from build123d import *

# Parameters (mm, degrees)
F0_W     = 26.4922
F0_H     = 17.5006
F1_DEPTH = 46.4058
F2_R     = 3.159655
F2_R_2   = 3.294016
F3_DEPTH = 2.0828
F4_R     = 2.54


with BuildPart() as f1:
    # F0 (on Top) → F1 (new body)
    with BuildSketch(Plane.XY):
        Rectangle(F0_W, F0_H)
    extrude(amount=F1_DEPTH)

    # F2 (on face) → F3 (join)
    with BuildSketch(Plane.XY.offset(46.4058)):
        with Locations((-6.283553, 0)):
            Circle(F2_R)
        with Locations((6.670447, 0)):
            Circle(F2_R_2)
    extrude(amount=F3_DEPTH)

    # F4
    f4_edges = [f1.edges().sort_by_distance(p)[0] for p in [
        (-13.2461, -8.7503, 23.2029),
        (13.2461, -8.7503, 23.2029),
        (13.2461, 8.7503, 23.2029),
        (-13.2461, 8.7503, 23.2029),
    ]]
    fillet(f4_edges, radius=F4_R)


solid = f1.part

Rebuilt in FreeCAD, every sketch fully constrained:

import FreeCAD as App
import Part
import Sketcher

V = App.Vector
Q = App.Units.Quantity


def edges_at(feature, points):
    """Names of the edges that pass closest to the given points."""
    edges = feature.Shape.Edges
    near = lambda p: min(range(len(edges)), key=lambda i: edges[i].distToShape(Part.Vertex(*p))[0])
    return sorted({f"Edge{near(p) + 1}" for p in points})

doc = App.newDocument("Part")
body = doc.addObject("PartDesign::Body", "Body")

# Sketch on XY plane
sketch1 = doc.addObject("Sketcher::SketchObject", "Sketch")
body.addObject(sketch1)
sketch1.AttachmentSupport = (doc.XY_Plane, [""])
sketch1.MapMode = "FlatFace"
sketch1.addGeometry(Part.LineSegment(V(-13, 9, 0), V(-13, -9, 0)), False)
sketch1.addGeometry(Part.LineSegment(V(-13, -9, 0), V(13, -9, 0)), False)
sketch1.addGeometry(Part.LineSegment(V(13, -9, 0), V(13, 9, 0)), False)
sketch1.addGeometry(Part.LineSegment(V(13, 9, 0), V(-13, 9, 0)), False)
sketch1.addConstraint(Sketcher.Constraint("Coincident", 0, 2, 1, 1))
sketch1.addConstraint(Sketcher.Constraint("Coincident", 1, 2, 2, 1))
sketch1.addConstraint(Sketcher.Constraint("Coincident", 2, 2, 3, 1))
sketch1.addConstraint(Sketcher.Constraint("Coincident", 3, 2, 0, 1))
sketch1.addConstraint(Sketcher.Constraint("Vertical", 0))
sketch1.addConstraint(Sketcher.Constraint("Horizontal", 1))
sketch1.addConstraint(Sketcher.Constraint("Vertical", 2))
sketch1.addConstraint(Sketcher.Constraint("Horizontal", 3))
sketch1.addConstraint(Sketcher.Constraint("Symmetric", 0, 2, 2, 2, -1, 1))
sketch1.addConstraint(Sketcher.Constraint("DistanceX", 1, 1, 1, 2, Q("1.043 in")))
sketch1.addConstraint(Sketcher.Constraint("DistanceY", 0, 2, 0, 1, Q("0.689 in")))
pad1 = doc.addObject("PartDesign::Pad", "Pad")
body.addObject(pad1)
pad1.Profile = sketch1
pad1.Length = Q("1.827 in")

# Sketch on XY plane
sketch2 = doc.addObject("Sketcher::SketchObject", "Sketch001")
body.addObject(sketch2)
sketch2.AttachmentSupport = (doc.XY_Plane, [""])
sketch2.MapMode = "FlatFace"
sketch2.AttachmentOffset = App.Placement(V(0, 0, 1.827 * 25.4), App.Rotation())
sketch2.addGeometry(Part.Circle(V(-6.3, 0, 0), V(0, 0, 1), 3.2), False)
sketch2.addGeometry(Part.Circle(V(6.7, 0, 0), V(0, 0, 1), 3.3), False)
sketch2.addConstraint(Sketcher.Constraint("PointOnObject", 0, 3, -1))
sketch2.addConstraint(Sketcher.Constraint("PointOnObject", 1, 3, -1))
sketch2.addConstraint(Sketcher.Constraint("DistanceX", 0, 3, 1, 3, Q("0.51 in")))
sketch2.addConstraint(Sketcher.Constraint("Diameter", 0, Q("6.31931 mm")))
sketch2.addConstraint(Sketcher.Constraint("Diameter", 1, Q("6.588032 mm")))
sketch2.addConstraint(Sketcher.Constraint("DistanceX", 0, 3, -1, 1, Q("6.283553 mm")))
pad2 = doc.addObject("PartDesign::Pad", "Pad001")
body.addObject(pad2)
pad2.Profile = sketch2
pad2.Length = Q("0.082 in")
doc.recompute()

fillet = doc.addObject("PartDesign::Fillet", "Fillet")
body.addObject(fillet)
fillet.Base = (pad2, edges_at(pad2, [
    (-13.246, -8.75, 23.203),
    (13.246, -8.75, 23.203),
    (13.246, 8.75, 23.203),
    (-13.246, 8.75, 23.203),
]))
fillet.Radius = Q("0.1 in")

doc.recompute()
